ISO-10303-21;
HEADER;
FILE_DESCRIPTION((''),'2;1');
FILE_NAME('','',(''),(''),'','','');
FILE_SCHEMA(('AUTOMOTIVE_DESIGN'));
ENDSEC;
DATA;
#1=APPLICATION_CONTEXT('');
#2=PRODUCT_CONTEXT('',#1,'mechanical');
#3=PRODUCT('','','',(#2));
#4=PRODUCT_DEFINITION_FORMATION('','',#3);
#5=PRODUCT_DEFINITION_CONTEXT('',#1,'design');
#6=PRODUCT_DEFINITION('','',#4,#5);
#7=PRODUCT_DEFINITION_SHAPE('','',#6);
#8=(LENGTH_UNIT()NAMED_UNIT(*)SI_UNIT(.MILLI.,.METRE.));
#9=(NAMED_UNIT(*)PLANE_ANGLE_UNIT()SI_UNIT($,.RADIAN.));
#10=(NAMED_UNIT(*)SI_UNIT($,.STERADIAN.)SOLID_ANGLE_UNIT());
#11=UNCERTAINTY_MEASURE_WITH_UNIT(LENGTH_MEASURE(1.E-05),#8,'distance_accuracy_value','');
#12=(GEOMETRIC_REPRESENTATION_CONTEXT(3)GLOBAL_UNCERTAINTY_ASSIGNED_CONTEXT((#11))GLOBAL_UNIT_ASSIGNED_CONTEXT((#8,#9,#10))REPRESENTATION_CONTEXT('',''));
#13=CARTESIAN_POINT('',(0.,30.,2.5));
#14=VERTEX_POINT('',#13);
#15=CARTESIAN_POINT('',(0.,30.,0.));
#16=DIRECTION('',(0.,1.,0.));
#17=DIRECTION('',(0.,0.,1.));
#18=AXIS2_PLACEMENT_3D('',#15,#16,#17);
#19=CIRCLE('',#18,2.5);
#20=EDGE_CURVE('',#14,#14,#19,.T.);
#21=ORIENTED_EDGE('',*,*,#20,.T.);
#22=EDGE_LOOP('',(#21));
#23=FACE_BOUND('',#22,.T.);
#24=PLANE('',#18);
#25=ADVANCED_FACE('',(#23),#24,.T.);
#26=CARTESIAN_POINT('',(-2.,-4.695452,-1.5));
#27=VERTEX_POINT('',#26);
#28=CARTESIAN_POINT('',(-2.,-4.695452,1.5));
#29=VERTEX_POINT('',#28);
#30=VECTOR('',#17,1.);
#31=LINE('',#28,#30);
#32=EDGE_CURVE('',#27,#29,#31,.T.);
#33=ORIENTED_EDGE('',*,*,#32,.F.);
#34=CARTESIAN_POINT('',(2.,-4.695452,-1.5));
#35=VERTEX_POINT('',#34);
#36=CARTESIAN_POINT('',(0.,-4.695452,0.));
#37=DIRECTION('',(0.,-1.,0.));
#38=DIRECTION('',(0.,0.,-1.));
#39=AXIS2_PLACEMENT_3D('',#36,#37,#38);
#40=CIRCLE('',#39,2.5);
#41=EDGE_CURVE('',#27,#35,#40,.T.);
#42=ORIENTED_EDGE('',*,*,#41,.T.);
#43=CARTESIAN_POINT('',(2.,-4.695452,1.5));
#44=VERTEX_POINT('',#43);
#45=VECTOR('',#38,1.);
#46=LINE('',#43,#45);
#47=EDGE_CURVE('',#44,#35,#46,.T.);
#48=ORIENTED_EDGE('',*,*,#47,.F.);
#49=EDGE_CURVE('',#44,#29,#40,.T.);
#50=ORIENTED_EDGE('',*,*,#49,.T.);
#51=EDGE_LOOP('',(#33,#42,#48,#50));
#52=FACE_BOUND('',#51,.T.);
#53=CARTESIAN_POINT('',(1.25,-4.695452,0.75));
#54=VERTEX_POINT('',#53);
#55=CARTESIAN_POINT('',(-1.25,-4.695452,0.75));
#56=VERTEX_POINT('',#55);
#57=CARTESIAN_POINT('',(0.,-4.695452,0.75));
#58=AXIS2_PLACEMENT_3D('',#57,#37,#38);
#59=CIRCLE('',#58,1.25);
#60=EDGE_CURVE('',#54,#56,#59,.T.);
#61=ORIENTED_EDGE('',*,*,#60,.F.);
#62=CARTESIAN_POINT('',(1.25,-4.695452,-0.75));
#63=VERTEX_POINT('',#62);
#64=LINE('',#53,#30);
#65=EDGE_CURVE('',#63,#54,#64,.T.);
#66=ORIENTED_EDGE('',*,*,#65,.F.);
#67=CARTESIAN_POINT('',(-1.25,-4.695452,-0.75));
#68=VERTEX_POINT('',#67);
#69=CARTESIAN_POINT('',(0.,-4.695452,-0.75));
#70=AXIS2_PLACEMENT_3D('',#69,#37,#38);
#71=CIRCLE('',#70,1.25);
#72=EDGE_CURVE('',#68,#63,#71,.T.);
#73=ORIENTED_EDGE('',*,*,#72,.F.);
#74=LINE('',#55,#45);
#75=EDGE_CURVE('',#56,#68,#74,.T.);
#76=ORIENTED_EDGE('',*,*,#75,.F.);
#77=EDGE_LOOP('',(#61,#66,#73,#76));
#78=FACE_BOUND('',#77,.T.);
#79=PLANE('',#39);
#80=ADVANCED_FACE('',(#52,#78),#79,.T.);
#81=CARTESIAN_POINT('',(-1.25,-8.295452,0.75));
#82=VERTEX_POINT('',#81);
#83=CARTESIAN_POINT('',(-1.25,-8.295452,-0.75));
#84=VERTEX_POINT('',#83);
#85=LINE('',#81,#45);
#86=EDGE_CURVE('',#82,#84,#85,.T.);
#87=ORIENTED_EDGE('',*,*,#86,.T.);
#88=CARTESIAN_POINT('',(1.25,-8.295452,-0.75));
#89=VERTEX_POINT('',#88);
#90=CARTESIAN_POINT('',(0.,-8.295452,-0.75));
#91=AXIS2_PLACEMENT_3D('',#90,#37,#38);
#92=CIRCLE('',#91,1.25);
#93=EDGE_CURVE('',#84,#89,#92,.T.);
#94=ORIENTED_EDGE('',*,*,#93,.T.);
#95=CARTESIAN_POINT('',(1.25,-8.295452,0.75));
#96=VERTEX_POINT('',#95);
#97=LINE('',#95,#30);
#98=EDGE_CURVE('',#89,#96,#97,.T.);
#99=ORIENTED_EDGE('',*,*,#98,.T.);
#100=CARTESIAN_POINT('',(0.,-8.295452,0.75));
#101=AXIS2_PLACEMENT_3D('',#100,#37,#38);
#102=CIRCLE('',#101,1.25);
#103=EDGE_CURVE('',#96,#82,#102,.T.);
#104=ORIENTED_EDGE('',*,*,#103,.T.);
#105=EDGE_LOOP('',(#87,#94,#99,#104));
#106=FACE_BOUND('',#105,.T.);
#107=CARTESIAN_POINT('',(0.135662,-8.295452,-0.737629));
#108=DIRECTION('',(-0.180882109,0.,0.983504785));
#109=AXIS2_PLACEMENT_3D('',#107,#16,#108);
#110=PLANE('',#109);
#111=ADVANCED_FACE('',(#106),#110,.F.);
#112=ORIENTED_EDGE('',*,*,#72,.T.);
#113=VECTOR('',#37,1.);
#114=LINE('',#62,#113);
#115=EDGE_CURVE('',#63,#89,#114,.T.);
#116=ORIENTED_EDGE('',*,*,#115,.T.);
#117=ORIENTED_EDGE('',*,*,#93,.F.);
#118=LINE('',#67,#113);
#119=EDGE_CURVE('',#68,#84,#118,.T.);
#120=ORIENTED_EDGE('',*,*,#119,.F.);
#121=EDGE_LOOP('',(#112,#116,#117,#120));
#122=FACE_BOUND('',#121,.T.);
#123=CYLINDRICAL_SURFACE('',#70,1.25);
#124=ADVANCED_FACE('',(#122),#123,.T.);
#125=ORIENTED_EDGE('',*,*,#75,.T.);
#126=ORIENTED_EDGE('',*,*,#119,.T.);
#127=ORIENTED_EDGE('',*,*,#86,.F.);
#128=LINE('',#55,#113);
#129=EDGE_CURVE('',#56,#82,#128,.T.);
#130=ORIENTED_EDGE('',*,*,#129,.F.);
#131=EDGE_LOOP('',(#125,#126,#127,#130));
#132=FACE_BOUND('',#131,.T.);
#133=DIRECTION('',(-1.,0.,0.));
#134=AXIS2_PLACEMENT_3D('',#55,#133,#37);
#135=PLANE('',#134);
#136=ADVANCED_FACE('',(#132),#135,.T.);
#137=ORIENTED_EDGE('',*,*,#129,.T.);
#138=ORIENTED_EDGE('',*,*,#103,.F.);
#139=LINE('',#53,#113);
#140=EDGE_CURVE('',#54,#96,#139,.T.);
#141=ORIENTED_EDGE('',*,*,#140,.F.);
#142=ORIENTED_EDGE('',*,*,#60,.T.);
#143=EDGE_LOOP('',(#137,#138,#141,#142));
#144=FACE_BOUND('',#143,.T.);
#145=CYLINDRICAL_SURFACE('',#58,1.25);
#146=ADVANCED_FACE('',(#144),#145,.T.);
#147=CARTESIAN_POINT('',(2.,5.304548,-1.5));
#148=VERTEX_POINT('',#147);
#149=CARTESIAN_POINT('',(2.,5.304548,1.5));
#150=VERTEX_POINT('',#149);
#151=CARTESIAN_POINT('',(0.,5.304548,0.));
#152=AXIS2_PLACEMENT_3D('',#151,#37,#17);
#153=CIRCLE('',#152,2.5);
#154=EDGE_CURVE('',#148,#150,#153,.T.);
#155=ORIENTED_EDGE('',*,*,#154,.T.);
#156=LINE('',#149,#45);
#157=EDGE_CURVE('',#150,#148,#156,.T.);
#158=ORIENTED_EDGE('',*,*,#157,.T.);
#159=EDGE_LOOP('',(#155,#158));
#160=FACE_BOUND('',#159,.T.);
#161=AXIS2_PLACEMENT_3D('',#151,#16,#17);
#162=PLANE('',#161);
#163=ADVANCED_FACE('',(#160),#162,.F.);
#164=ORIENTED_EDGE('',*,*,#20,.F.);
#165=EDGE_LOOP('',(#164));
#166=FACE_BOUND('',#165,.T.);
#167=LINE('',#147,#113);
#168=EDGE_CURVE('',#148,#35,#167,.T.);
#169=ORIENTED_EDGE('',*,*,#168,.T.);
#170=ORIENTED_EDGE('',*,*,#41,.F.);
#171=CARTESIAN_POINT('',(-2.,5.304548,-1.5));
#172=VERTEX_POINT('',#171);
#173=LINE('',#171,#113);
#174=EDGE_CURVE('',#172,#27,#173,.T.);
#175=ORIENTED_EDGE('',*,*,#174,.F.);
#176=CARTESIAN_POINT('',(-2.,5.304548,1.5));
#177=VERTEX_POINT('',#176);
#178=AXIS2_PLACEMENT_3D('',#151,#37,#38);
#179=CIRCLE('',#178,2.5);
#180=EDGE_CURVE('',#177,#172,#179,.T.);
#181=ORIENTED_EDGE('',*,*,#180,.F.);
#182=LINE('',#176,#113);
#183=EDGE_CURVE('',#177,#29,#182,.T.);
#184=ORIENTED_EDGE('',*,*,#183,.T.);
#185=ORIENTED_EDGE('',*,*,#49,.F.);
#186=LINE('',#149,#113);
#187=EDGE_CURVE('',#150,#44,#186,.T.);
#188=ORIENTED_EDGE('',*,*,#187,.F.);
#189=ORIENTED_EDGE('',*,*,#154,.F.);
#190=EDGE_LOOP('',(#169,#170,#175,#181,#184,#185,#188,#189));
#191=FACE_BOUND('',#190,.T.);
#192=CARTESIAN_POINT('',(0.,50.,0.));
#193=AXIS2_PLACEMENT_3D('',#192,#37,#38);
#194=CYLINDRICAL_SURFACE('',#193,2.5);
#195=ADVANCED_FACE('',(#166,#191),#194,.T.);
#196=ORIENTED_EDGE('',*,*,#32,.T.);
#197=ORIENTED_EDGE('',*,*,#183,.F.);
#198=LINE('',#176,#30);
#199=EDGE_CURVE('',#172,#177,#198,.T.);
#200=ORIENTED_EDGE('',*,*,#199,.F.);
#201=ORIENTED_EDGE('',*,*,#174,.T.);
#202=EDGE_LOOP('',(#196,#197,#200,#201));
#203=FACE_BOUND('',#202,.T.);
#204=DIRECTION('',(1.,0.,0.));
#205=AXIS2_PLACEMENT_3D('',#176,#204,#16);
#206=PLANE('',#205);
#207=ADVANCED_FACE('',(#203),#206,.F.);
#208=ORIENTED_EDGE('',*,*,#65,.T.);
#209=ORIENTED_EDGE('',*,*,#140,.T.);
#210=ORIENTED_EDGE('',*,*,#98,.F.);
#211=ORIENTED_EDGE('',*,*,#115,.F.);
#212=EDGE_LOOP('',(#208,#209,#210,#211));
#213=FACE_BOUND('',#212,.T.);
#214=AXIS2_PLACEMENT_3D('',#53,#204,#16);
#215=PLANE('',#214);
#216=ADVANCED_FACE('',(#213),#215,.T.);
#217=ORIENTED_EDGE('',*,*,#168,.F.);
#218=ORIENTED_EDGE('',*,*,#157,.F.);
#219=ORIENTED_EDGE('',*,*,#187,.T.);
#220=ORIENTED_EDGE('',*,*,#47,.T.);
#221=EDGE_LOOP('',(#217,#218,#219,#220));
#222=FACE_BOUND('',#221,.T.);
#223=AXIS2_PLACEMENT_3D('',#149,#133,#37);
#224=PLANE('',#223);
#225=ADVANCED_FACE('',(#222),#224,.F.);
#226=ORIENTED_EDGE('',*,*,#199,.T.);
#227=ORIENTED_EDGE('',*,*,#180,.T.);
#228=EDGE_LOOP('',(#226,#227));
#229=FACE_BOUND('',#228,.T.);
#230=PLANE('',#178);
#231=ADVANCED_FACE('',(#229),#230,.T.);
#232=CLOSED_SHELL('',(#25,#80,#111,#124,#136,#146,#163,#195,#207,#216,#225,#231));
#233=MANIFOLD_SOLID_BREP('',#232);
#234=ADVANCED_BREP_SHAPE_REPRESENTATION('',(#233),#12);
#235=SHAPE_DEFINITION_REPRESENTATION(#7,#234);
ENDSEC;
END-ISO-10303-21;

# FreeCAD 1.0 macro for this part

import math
import FreeCAD as App
import Part
import Sketcher


def add_polygon(sketch, points):
    """Adds a closed chain of lines whose ends are joined by coincident constraints."""
    first, n = sketch.GeometryCount, len(points)
    for a, b in zip(points, points[1:] + points[:1]):
        sketch.addGeometry(Part.LineSegment(App.Vector(*a, 0), App.Vector(*b, 0)), False)
    for i in range(n):
        sketch.addConstraint(Sketcher.Constraint("Coincident", first + i, 2, first + (i + 1) % n, 1))

doc = App.newDocument("Part")
params = doc.addObject("Spreadsheet::Sheet", "Params")
for row, (alias, value) in enumerate([
    ("sketch1_diameter", "5 mm"),
    ("pad1_length", "50 mm"),
    ("sketch2_diameter", "5 mm"),
    ("pad2_length", "8.295452 mm"),
    ("sketch3_radius", "1.25 mm"),
    ("sketch3_height", "1.5 mm"),
    ("pocket1_length", "3.6 mm"),
    ("sketch4_radius", "2.5 mm"),
    ("sketch4_height", "3 mm"),
    ("pocket2_length", "10 mm"),
    ("sketch5_diameter", "5 mm"),
    ("pocket3_length", "20 mm"),
], start=1):
    params.set(f"A{row}", alias)
    params.set(f"B{row}", "=" + value)
    params.setAlias(f"B{row}", alias)

body = doc.addObject("PartDesign::Body", "Body")

sketch1 = body.newObject("Sketcher::SketchObject", "Sketch")
sketch1.AttachmentSupport = (doc.getObject("XZ_Plane"), [""])
sketch1.MapMode = "FlatFace"
sketch1.addGeometry(Part.Circle(App.Vector(0, 0, 0), App.Vector(0, 0, 1), 2.5), False)
sketch1.addConstraint([
    Sketcher.Constraint("Coincident", 0, 3, -1, 1),
    Sketcher.Constraint("Diameter", 0, 5.0),
])
sketch1.setExpression("Constraints[1]", "Params.sketch1_diameter")
pad1 = body.newObject("PartDesign::Pad", "Pad")
pad1.Profile = sketch1
pad1.setExpression("Length", "Params.pad1_length")
pad1.Reversed = True

sketch2 = body.newObject("Sketcher::SketchObject", "Sketch001")
sketch2.AttachmentSupport = (doc.getObject("XZ_Plane"), [""])
sketch2.MapMode = "FlatFace"
sketch2.AttachmentOffset = App.Placement(App.Vector(0, 0, 8.295452), App.Rotation())
sketch2.addGeometry(Part.Circle(App.Vector(0, 0, 0), App.Vector(0, 0, 1), 2.5), False)
sketch2.addConstraint([
    Sketcher.Constraint("Coincident", 0, 3, -1, 1),
    Sketcher.Constraint("Diameter", 0, 5.0),
])
sketch2.setExpression("Constraints[1]", "Params.sketch2_diameter")
pad2 = body.newObject("PartDesign::Pad", "Pad001")
pad2.Profile = sketch2
pad2.setExpression("Length", "Params.pad2_length")
pad2.Reversed = True

sketch3 = body.newObject("Sketcher::SketchObject", "Sketch002")
sketch3.AttachmentSupport = (doc.getObject("XZ_Plane"), [""])
sketch3.MapMode = "FlatFace"
sketch3.AttachmentOffset = App.Placement(App.Vector(0, 0, 8.295452), App.Rotation())
add_polygon(sketch3, [(-9.4, 9.4), (-9.4, -9.4), (9.4, -9.4), (9.4, 9.4)])
sketch3.addGeometry(Part.ArcOfCircle(Part.Circle(App.Vector(0, 0.8, 0), App.Vector(0, 0, 1), 1.2), math.radians(0), math.radians(180)), False)
sketch3.addGeometry(Part.LineSegment(App.Vector(1.2, 0.8, 0), App.Vector(1.2, -0.8, 0)), False)
sketch3.addGeometry(Part.ArcOfCircle(Part.Circle(App.Vector(0, -0.8, 0), App.Vector(0, 0, 1), 1.2), math.radians(180), math.radians(360)), False)
sketch3.addGeometry(Part.LineSegment(App.Vector(-1.2, -0.8, 0), App.Vector(-1.2, 0.8, 0)), False)
sketch3.addConstraint([
    Sketcher.Constraint("Tangent", 4, 1, 5, 1),
    Sketcher.Constraint("Tangent", 5, 2, 6, 2),
    Sketcher.Constraint("Tangent", 6, 1, 7, 1),
    Sketcher.Constraint("Tangent", 7, 2, 4, 2),
    Sketcher.Constraint("Vertical", 0),
    Sketcher.Constraint("Horizontal", 1),
    Sketcher.Constraint("Vertical", 2),
    Sketcher.Constraint("Horizontal", 3),
    Sketcher.Constraint("Vertical", 5),
    Sketcher.Constraint("Vertical", 7),
    Sketcher.Constraint("Symmetric", 4, 3, 6, 3, -1, 1),
    Sketcher.Constraint("Symmetric", 0, 2, 2, 2, -1, 1),
    Sketcher.Constraint("Equal", 3, 0),
    Sketcher.Constraint("Radius", 4, 1.25),
    Sketcher.Constraint("DistanceY", 5, 2, 5, 1, 1.5),
    Sketcher.Constraint("DistanceX", 1, 1, 1, 2, 18.744),
])
sketch3.setExpression("Constraints[17]", "Params.sketch3_radius")
sketch3.setExpression("Constraints[18]", "Params.sketch3_height")
pocket1 = body.newObject("PartDesign::Pocket", "Pocket")
pocket1.Profile = sketch3
pocket1.setExpression("Length", "Params.pocket1_length")

sketch4 = body.newObject("Sketcher::SketchObject", "Sketch003")
sketch4.AttachmentSupport = (doc.getObject("XZ_Plane"), [""])
sketch4.MapMode = "FlatFace"
sketch4.AttachmentOffset = App.Placement(App.Vector(0, 0, 4.695452), App.Rotation())
sketch4.addGeometry([
    Part.LineSegment(App.Vector(-2, -1.5, 0), App.Vector(-2, 1.5, 0)),
    Part.ArcOfCircle(Part.Circle(App.Vector(0, 0, 0), App.Vector(0, 0, 1), 2.5), math.radians(143), math.radians(217)),
    Part.LineSegment(App.Vector(2, 1.5, 0), App.Vector(2, -1.5, 0)),
    Part.ArcOfCircle(Part.Circle(App.Vector(0, 0, 0), App.Vector(0, 0, 1), 2.5), math.radians(-37), math.radians(37)),
], False)
sketch4.addConstraint([
    Sketcher.Constraint("Coincident", 0, 1, 1, 2),
    Sketcher.Constraint("Coincident", 1, 1, 0, 2),
    Sketcher.Constraint("Coincident", 2, 1, 3, 2),
    Sketcher.Constraint("Coincident", 3, 1, 2, 2),
    Sketcher.Constraint("Vertical", 0),
    Sketcher.Constraint("Vertical", 2),
    Sketcher.Constraint("Coincident", 1, 3, -1, 1),
    Sketcher.Constraint("Coincident", 3, 3, -1, 1),
    Sketcher.Constraint("Equal", 1, 3),
    Sketcher.Constraint("Horizontal", 1, 1, 2, 1),
    Sketcher.Constraint("Radius", 1, 2.5),
    Sketcher.Constraint("DistanceY", 0, 1, 0, 2, 3.0),
])
sketch4.setExpression("Constraints[10]", "Params.sketch4_radius")
sketch4.setExpression("Constraints[11]", "Params.sketch4_height")
pocket2 = body.newObject("PartDesign::Pocket", "Pocket001")
pocket2.Profile = sketch4
pocket2.setExpression("Length", "Params.pocket2_length")

sketch5 = body.newObject("Sketcher::SketchObject", "Sketch004")
sketch5.AttachmentSupport = (doc.getObject("XZ_Plane"), [""])
sketch5.MapMode = "FlatFace"
sketch5.AttachmentOffset = App.Placement(App.Vector(0, 0, -30), App.Rotation())
sketch5.addGeometry(Part.Circle(App.Vector(0, 0, 0), App.Vector(0, 0, 1), 2.5), False)
sketch5.addConstraint([
    Sketcher.Constraint("Coincident", 0, 3, -1, 1),
    Sketcher.Constraint("Diameter", 0, 5.0),
])
sketch5.setExpression("Constraints[1]", "Params.sketch5_diameter")
pocket3 = body.newObject("PartDesign::Pocket", "Pocket002")
pocket3.Profile = sketch5
pocket3.setExpression("Length", "Params.pocket3_length")

doc.recompute()
